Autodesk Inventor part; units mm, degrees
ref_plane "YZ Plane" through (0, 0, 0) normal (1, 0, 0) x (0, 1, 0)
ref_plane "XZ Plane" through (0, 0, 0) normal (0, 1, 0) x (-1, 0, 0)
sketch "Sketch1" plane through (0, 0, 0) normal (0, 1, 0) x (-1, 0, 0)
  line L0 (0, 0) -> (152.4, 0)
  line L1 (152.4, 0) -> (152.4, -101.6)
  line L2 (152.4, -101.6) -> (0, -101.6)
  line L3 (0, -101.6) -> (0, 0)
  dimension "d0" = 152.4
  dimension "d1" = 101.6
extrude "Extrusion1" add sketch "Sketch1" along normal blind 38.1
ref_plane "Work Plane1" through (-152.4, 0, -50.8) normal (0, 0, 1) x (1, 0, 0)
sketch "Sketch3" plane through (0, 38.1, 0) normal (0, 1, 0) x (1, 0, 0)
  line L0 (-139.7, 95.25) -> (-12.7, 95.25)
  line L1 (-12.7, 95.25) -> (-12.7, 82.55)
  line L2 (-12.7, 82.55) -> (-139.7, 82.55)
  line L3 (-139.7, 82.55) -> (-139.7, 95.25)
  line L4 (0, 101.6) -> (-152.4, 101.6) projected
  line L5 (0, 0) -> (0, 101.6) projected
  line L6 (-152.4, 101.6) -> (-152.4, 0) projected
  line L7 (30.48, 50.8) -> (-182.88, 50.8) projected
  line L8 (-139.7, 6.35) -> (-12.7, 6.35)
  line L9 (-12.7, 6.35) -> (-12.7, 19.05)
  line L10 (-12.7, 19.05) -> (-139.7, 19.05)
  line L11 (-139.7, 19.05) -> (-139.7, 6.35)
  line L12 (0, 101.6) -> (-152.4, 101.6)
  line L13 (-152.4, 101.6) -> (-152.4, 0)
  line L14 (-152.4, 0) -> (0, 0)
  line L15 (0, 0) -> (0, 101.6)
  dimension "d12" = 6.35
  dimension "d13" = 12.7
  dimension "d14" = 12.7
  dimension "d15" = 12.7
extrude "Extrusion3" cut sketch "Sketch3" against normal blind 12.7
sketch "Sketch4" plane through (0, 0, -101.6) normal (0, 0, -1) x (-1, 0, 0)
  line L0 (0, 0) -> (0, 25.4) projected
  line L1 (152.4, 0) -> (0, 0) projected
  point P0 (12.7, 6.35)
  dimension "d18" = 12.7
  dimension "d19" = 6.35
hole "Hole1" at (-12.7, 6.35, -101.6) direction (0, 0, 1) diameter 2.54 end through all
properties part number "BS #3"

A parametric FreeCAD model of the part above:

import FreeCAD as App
import Part
import Sketcher

V = App.Vector
Q = App.Units.Quantity

doc = App.newDocument("Part")
body = doc.addObject("PartDesign::Body", "Body")

# Sketch on XZ plane
sketch1 = body.newObject("Sketcher::SketchObject", "Sketch")
sketch1.AttachmentSupport = (doc.getObject("XZ_Plane"), [""])
sketch1.MapMode = "FlatFace"
sketch1.addGeometry(Part.LineSegment(V(-152, 0, 0), V(0, 0, 0)), False)
sketch1.addGeometry(Part.LineSegment(V(0, 0, 0), V(0, -102, 0)), False)
sketch1.addGeometry(Part.LineSegment(V(0, -102, 0), V(-152, -102, 0)), False)
sketch1.addGeometry(Part.LineSegment(V(-152, -102, 0), V(-152, 0, 0)), False)
sketch1.addConstraint(Sketcher.Constraint("Coincident", 0, 2, 1, 1))
sketch1.addConstraint(Sketcher.Constraint("Coincident", 1, 2, 2, 1))
sketch1.addConstraint(Sketcher.Constraint("Coincident", 2, 2, 3, 1))
sketch1.addConstraint(Sketcher.Constraint("Coincident", 3, 2, 0, 1))
sketch1.addConstraint(Sketcher.Constraint("Horizontal", 0))
sketch1.addConstraint(Sketcher.Constraint("Vertical", 1))
sketch1.addConstraint(Sketcher.Constraint("Horizontal", 2))
sketch1.addConstraint(Sketcher.Constraint("Vertical", 3))
sketch1.addConstraint(Sketcher.Constraint("Coincident", 0, 2, -1, 1))
sketch1.addConstraint(Sketcher.Constraint("DistanceX", 0, 1, 0, 2, Q("6 in")))
sketch1.addConstraint(Sketcher.Constraint("DistanceY", 1, 2, 1, 1, Q("4 in")))
pad1 = body.newObject("PartDesign::Pad", "Pad")
pad1.Profile = sketch1
pad1.Length = Q("1.5 in")
pad1.Reversed = True

# Sketch on XZ plane
sketch2 = body.newObject("Sketcher::SketchObject", "Sketch001")
sketch2.AttachmentSupport = (doc.getObject("XZ_Plane"), [""])
sketch2.MapMode = "FlatFace"
sketch2.AttachmentOffset = App.Placement(V(0, 0, -1.5 * 25.4), App.Rotation())
sketch2.addGeometry(Part.LineSegment(V(0, -102, 0), V(-152, -102, 0)), False)
sketch2.addGeometry(Part.LineSegment(V(-152, -102, 0), V(-152, 0, 0)), False)
sketch2.addGeometry(Part.LineSegment(V(-152, 0, 0), V(0, 0, 0)), False)
sketch2.addGeometry(Part.LineSegment(V(0, 0, 0), V(0, -102, 0)), False)
sketch2.addGeometry(Part.LineSegment(V(-140, -83, 0), V(-140, -95, 0)), False)
sketch2.addGeometry(Part.LineSegment(V(-140, -95, 0), V(-13, -95, 0)), False)
sketch2.addGeometry(Part.LineSegment(V(-13, -95, 0), V(-13, -83, 0)), False)
sketch2.addGeometry(Part.LineSegment(V(-13, -83, 0), V(-140, -83, 0)), False)
sketch2.addGeometry(Part.LineSegment(V(-140, -6, 0), V(-140, -19, 0)), False)
sketch2.addGeometry(Part.LineSegment(V(-140, -19, 0), V(-13, -19, 0)), False)
sketch2.addGeometry(Part.LineSegment(V(-13, -19, 0), V(-13, -6, 0)), False)
sketch2.addGeometry(Part.LineSegment(V(-13, -6, 0), V(-140, -6, 0)), False)
sketch2.addConstraint(Sketcher.Constraint("Coincident", 0, 2, 1, 1))
sketch2.addConstraint(Sketcher.Constraint("Coincident", 1, 2, 2, 1))
sketch2.addConstraint(Sketcher.Constraint("Coincident", 2, 2, 3, 1))
sketch2.addConstraint(Sketcher.Constraint("Coincident", 3, 2, 0, 1))
sketch2.addConstraint(Sketcher.Constraint("Coincident", 4, 2, 5, 1))
sketch2.addConstraint(Sketcher.Constraint("Coincident", 5, 2, 6, 1))
sketch2.addConstraint(Sketcher.Constraint("Coincident", 6, 2, 7, 1))
sketch2.addConstraint(Sketcher.Constraint("Coincident", 7, 2, 4, 1))
sketch2.addConstraint(Sketcher.Constraint("Coincident", 8, 2, 9, 1))
sketch2.addConstraint(Sketcher.Constraint("Coincident", 9, 2, 10, 1))
sketch2.addConstraint(Sketcher.Constraint("Coincident", 10, 2, 11, 1))
sketch2.addConstraint(Sketcher.Constraint("Coincident", 11, 2, 8, 1))
sketch2.addConstraint(Sketcher.Constraint("Horizontal", 0))
sketch2.addConstraint(Sketcher.Constraint("Vertical", 1))
sketch2.addConstraint(Sketcher.Constraint("Horizontal", 2))
sketch2.addConstraint(Sketcher.Constraint("Vertical", 3))
sketch2.addConstraint(Sketcher.Constraint("Vertical", 4))
sketch2.addConstraint(Sketcher.Constraint("Horizontal", 5))
sketch2.addConstraint(Sketcher.Constraint("Vertical", 6))
sketch2.addConstraint(Sketcher.Constraint("Horizontal", 7))
sketch2.addConstraint(Sketcher.Constraint("Vertical", 8))
sketch2.addConstraint(Sketcher.Constraint("Horizontal", 9))
sketch2.addConstraint(Sketcher.Constraint("Vertical", 10))
sketch2.addConstraint(Sketcher.Constraint("Horizontal", 11))
sketch2.addConstraint(Sketcher.Constraint("Coincident", 2, 2, -1, 1))
sketch2.addConstraint(Sketcher.Constraint("Vertical", 7, 2, 8, 2))
sketch2.addConstraint(Sketcher.Constraint("Vertical", 6, 2, 9, 2))
sketch2.addConstraint(Sketcher.Constraint("Equal", 6, 8))
sketch2.addConstraint(Sketcher.Constraint("DistanceY", 4, 2, 4, 1, Q("0.5 in")))
sketch2.addConstraint(Sketcher.Constraint("DistanceX", 5, 2, -1, 1, Q("0.5 in")))
sketch2.addConstraint(Sketcher.Constraint("DistanceX", 0, 2, 4, 2, Q("0.5 in")))
sketch2.addConstraint(Sketcher.Constraint("DistanceX", 0, 2, 0, 1, Q("6 in")))
sketch2.addConstraint(Sketcher.Constraint("DistanceY", 1, 1, 1, 2, Q("4 in")))
sketch2.addConstraint(Sketcher.Constraint("DistanceY", 10, 2, -1, 1, Q("0.25 in")))
sketch2.addConstraint(Sketcher.Constraint("DistanceY", 0, 2, 4, 2, Q("0.25 in")))
pocket1 = body.newObject("PartDesign::Pocket", "Pocket")
pocket1.Profile = sketch2
pocket1.Length = Q("0.5 in")
pocket1.Reversed = True

# Sketch on XY plane
sketch3 = body.newObject("Sketcher::SketchObject", "Sketch002")
sketch3.AttachmentSupport = (doc.getObject("XY_Plane"), [""])
sketch3.MapMode = "FlatFace"
sketch3.AttachmentOffset = App.Placement(V(0, 0, -4 * 25.4), App.Rotation())
sketch3.addGeometry(Part.Circle(V(-12.7, 6.3, 0), V(0, 0, 1), 1.3), False)
sketch3.addConstraint(Sketcher.Constraint("Diameter", 0, Q("0.1 in")))
sketch3.addConstraint(Sketcher.Constraint("DistanceX", 0, 3, -1, 1, Q("0.5 in")))
sketch3.addConstraint(Sketcher.Constraint("DistanceY", -1, 1, 0, 3, Q("0.25 in")))
doc.recompute()
hole = body.newObject("PartDesign::Hole", "Hole")
hole.Profile = sketch3
hole.ThreadType = "None"
hole.Diameter = Q("0.1 in")
hole.DepthType = "ThroughAll"
hole.Reversed = True

doc.recompute()
